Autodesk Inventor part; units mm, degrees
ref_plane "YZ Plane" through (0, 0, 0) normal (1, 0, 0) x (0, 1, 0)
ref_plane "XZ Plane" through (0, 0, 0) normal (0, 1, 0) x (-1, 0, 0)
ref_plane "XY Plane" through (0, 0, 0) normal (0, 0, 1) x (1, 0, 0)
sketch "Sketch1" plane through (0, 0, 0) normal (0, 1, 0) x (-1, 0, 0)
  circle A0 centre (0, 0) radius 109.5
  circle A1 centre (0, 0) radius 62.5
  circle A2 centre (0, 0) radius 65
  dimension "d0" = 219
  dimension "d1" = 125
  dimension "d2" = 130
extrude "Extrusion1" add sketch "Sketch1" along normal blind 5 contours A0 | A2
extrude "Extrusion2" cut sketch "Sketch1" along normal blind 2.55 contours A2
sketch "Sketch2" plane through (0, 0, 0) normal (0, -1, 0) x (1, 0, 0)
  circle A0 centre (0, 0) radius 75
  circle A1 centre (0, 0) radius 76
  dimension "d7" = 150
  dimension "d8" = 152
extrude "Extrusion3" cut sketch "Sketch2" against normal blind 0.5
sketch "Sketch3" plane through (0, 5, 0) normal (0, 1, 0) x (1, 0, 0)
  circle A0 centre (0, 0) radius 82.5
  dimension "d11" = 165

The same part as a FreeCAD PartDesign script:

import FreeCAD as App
import Part
import Sketcher
Q = App.Units.Quantity

doc = App.newDocument("Part")
body = doc.addObject("PartDesign::Body", "Body")

# Sketch on XZ plane
sketch1 = doc.addObject("Sketcher::SketchObject", "Sketch")
body.addObject(sketch1)
sketch1.AttachmentSupport = (doc.XZ_Plane, [""])
sketch1.MapMode = "FlatFace"
sketch1.addGeometry(Part.Circle(App.Vector(0, 0, 0), App.Vector(0, 0, 1), 110), False)
sketch1.addGeometry(Part.Circle(App.Vector(0, 0, 0), App.Vector(0, 0, 1), 62), False)
sketch1.addConstraint(Sketcher.Constraint("Coincident", 0, 3, -1, 1))
sketch1.addConstraint(Sketcher.Constraint("Coincident", 1, 3, -1, 1))
sketch1.addConstraint(Sketcher.Constraint("Diameter", 0, Q("219 mm")))
sketch1.addConstraint(Sketcher.Constraint("Diameter", 1, Q("125 mm")))
pad1 = doc.addObject("PartDesign::Pad", "Pad")
body.addObject(pad1)
pad1.Profile = sketch1
pad1.Length = 5
pad1.Reversed = True

# Sketch on XZ plane
sketch2 = doc.addObject("Sketcher::SketchObject", "Sketch001")
body.addObject(sketch2)
sketch2.AttachmentSupport = (doc.XZ_Plane, [""])
sketch2.MapMode = "FlatFace"
sketch2.addGeometry(Part.Circle(App.Vector(0, 0, 0), App.Vector(0, 0, 1), 65), False)
sketch2.addGeometry(Part.Circle(App.Vector(0, 0, 0), App.Vector(0, 0, 1), 62), False)
sketch2.addConstraint(Sketcher.Constraint("Coincident", 0, 3, -1, 1))
sketch2.addConstraint(Sketcher.Constraint("Coincident", 1, 3, -1, 1))
sketch2.addConstraint(Sketcher.Constraint("Diameter", 0, Q("130 mm")))
sketch2.addConstraint(Sketcher.Constraint("Diameter", 1, Q("125 mm")))
pocket1 = doc.addObject("PartDesign::Pocket", "Pocket")
body.addObject(pocket1)
pocket1.Profile = sketch2
pocket1.Length = 2.55

# Sketch on XZ plane
sketch3 = doc.addObject("Sketcher::SketchObject", "Sketch002")
body.addObject(sketch3)
sketch3.AttachmentSupport = (doc.XZ_Plane, [""])
sketch3.MapMode = "FlatFace"
sketch3.addGeometry(Part.Circle(App.Vector(0, 0, 0), App.Vector(0, 0, 1), 76), False)
sketch3.addGeometry(Part.Circle(App.Vector(0, 0, 0), App.Vector(0, 0, 1), 75), False)
sketch3.addConstraint(Sketcher.Constraint("Coincident", 0, 3, -1, 1))
sketch3.addConstraint(Sketcher.Constraint("Coincident", 1, 3, -1, 1))
sketch3.addConstraint(Sketcher.Constraint("Diameter", 0, Q("152 mm")))
sketch3.addConstraint(Sketcher.Constraint("Diameter", 1, Q("150 mm")))
pocket2 = doc.addObject("PartDesign::Pocket", "Pocket001")
body.addObject(pocket2)
pocket2.Profile = sketch3
pocket2.Length = 0.5

doc.recompute()
